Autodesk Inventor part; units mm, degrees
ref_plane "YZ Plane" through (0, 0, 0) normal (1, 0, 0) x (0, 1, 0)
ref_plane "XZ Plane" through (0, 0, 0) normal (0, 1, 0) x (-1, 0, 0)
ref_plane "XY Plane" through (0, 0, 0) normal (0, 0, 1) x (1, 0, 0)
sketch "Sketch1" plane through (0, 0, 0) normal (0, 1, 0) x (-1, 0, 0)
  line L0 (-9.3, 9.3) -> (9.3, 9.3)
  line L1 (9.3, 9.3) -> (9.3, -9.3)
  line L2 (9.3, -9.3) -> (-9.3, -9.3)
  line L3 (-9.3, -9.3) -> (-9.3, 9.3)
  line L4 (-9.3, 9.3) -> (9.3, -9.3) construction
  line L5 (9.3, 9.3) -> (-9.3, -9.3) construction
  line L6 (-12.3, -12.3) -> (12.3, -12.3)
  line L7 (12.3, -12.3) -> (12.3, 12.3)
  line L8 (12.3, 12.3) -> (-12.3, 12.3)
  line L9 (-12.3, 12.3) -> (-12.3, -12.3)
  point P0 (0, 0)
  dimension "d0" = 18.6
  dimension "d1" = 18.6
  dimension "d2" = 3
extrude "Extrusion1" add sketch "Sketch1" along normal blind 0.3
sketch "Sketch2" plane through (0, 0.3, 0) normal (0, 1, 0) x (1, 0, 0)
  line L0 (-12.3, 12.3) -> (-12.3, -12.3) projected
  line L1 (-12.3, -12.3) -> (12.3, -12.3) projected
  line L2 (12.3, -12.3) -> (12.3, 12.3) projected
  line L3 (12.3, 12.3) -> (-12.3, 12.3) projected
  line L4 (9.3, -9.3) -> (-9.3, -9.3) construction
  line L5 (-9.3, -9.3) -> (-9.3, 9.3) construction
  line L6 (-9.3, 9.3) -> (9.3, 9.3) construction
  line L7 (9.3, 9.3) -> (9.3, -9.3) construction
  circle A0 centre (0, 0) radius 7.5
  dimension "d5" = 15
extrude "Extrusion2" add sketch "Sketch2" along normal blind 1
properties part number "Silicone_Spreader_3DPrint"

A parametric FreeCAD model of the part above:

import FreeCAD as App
import Part
import Sketcher
Q = App.Units.Quantity


def add_polygon(sketch, points):
    """Adds a closed chain of lines whose ends are joined by coincident constraints."""
    first, n = sketch.GeometryCount, len(points)
    for a, b in zip(points, points[1:] + points[:1]):
        sketch.addGeometry(Part.LineSegment(App.Vector(*a, 0), App.Vector(*b, 0)), False)
    for i in range(n):
        sketch.addConstraint(Sketcher.Constraint("Coincident", first + i, 2, first + (i + 1) % n, 1))

doc = App.newDocument("Part")
body = doc.addObject("PartDesign::Body", "Body")

# Sketch on XZ plane
sketch1 = doc.addObject("Sketcher::SketchObject", "Sketch")
body.addObject(sketch1)
sketch1.AttachmentSupport = (doc.XZ_Plane, [""])
sketch1.MapMode = "FlatFace"
add_polygon(sketch1, [(12, 12), (12, -12), (-12, -12), (-12, 12)])  # lines 0-3
add_polygon(sketch1, [(9, -9), (9, 9), (-9, 9), (-9, -9)])  # lines 4-7
sketch1.addConstraint(Sketcher.Constraint("Vertical", 0))
sketch1.addConstraint(Sketcher.Constraint("Horizontal", 1))
sketch1.addConstraint(Sketcher.Constraint("Vertical", 2))
sketch1.addConstraint(Sketcher.Constraint("Horizontal", 3))
sketch1.addConstraint(Sketcher.Constraint("Vertical", 4))
sketch1.addConstraint(Sketcher.Constraint("Horizontal", 5))
sketch1.addConstraint(Sketcher.Constraint("Vertical", 6))
sketch1.addConstraint(Sketcher.Constraint("Horizontal", 7))
sketch1.addConstraint(Sketcher.Constraint("Symmetric", 0, 2, 2, 2, -1, 1))
sketch1.addConstraint(Sketcher.Constraint("Symmetric", 4, 2, 6, 2, -1, 1))
sketch1.addConstraint(Sketcher.Constraint("Equal", 3, 0))
sketch1.addConstraint(Sketcher.Constraint("Equal", 7, 4))
sketch1.addConstraint(Sketcher.Constraint("DistanceX", 5, 2, 5, 1, Q("18.6 mm")))
sketch1.addConstraint(Sketcher.Constraint("DistanceX", 4, 2, 3, 2, Q("3 mm")))
pad1 = doc.addObject("PartDesign::Pad", "Pad")
body.addObject(pad1)
pad1.Profile = sketch1
pad1.Length = 0.3
pad1.Reversed = True

# Sketch on XZ plane
sketch2 = doc.addObject("Sketcher::SketchObject", "Sketch001")
body.addObject(sketch2)
sketch2.AttachmentSupport = (doc.XZ_Plane, [""])
sketch2.MapMode = "FlatFace"
sketch2.AttachmentOffset = App.Placement(App.Vector(0, 0, -0.3), App.Rotation())
add_polygon(sketch2, [(12, -12), (-12, -12), (-12, 12), (12, 12)])  # lines 0-3
sketch2.addGeometry(Part.Circle(App.Vector(0, 0, 0), App.Vector(0, 0, 1), 8), False)  # 4
sketch2.addConstraint(Sketcher.Constraint("Horizontal", 0))
sketch2.addConstraint(Sketcher.Constraint("Vertical", 1))
sketch2.addConstraint(Sketcher.Constraint("Horizontal", 2))
sketch2.addConstraint(Sketcher.Constraint("Vertical", 3))
sketch2.addConstraint(Sketcher.Constraint("Coincident", 4, 3, -1, 1))
sketch2.addConstraint(Sketcher.Constraint("Symmetric", 0, 2, 2, 2, -1, 1))
sketch2.addConstraint(Sketcher.Constraint("Equal", 2, 1))
sketch2.addConstraint(Sketcher.Constraint("Diameter", 4, Q("15 mm")))
sketch2.addConstraint(Sketcher.Constraint("DistanceX", 0, 2, 0, 1, Q("24.6 mm")))
pad2 = doc.addObject("PartDesign::Pad", "Pad001")
body.addObject(pad2)
pad2.Profile = sketch2
pad2.Length = 1
pad2.Reversed = True

doc.recompute()
